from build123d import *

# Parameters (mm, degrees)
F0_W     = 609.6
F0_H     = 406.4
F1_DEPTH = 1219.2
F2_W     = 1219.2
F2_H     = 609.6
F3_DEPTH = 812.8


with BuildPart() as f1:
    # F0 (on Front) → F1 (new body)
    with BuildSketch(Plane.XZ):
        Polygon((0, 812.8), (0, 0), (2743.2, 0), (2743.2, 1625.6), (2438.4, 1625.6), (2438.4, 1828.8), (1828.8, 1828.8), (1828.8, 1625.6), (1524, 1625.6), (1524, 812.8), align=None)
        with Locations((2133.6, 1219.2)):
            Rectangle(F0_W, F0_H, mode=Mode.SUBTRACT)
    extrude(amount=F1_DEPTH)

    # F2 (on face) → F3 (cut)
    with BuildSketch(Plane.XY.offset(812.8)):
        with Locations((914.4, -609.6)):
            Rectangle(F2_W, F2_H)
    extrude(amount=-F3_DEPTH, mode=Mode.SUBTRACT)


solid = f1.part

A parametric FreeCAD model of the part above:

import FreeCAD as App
import Part
import Sketcher
from FreeCAD import Vector
Q = App.Units.Quantity

doc = App.newDocument("Part")
body = doc.addObject("PartDesign::Body", "Body")

sketch1 = body.newObject("Sketcher::SketchObject", "Sketch")
sketch1.AttachmentSupport = (doc.getObject("XZ_Plane"), [""])
sketch1.MapMode = "FlatFace"
sketch1.addGeometry([
    Part.LineSegment(Vector(0, 812.8, 0), Vector(0, 0, 0)),
    Part.LineSegment(Vector(0, 0, 0), Vector(2743.2, 0, 0)),
    Part.LineSegment(Vector(2743.2, 0, 0), Vector(2743.2, 1625.6, 0)),
    Part.LineSegment(Vector(2743.2, 1625.6, 0), Vector(2438.4, 1625.6, 0)),
    Part.LineSegment(Vector(2438.4, 1625.6, 0), Vector(2438.4, 1828.8, 0)),
    Part.LineSegment(Vector(2438.4, 1828.8, 0), Vector(1828.8, 1828.8, 0)),
    Part.LineSegment(Vector(1828.8, 1828.8, 0), Vector(1828.8, 1625.6, 0)),
    Part.LineSegment(Vector(1828.8, 1625.6, 0), Vector(1524, 1625.6, 0)),
    Part.LineSegment(Vector(1524, 1625.6, 0), Vector(1524, 812.8, 0)),
    Part.LineSegment(Vector(1524, 812.8, 0), Vector(0, 812.8, 0)),
    Part.LineSegment(Vector(2438.4, 1016, 0), Vector(1828.8, 1016, 0)),
    Part.LineSegment(Vector(1828.8, 1016, 0), Vector(1828.8, 1422.4, 0)),
    Part.LineSegment(Vector(1828.8, 1422.4, 0), Vector(2438.4, 1422.4, 0)),
    Part.LineSegment(Vector(2438.4, 1422.4, 0), Vector(2438.4, 1016, 0)),
], False)
sketch1.addConstraint([
    Sketcher.Constraint("Coincident", 0, 2, 1, 1),
    Sketcher.Constraint("Coincident", 1, 2, 2, 1),
    Sketcher.Constraint("Coincident", 2, 2, 3, 1),
    Sketcher.Constraint("Coincident", 3, 2, 4, 1),
    Sketcher.Constraint("Coincident", 4, 2, 5, 1),
    Sketcher.Constraint("Coincident", 5, 2, 6, 1),
    Sketcher.Constraint("Coincident", 6, 2, 7, 1),
    Sketcher.Constraint("Coincident", 7, 2, 8, 1),
    Sketcher.Constraint("Coincident", 8, 2, 9, 1),
    Sketcher.Constraint("Coincident", 9, 2, 0, 1),
    Sketcher.Constraint("Coincident", 10, 2, 11, 1),
    Sketcher.Constraint("Coincident", 11, 2, 12, 1),
    Sketcher.Constraint("Coincident", 12, 2, 13, 1),
    Sketcher.Constraint("Coincident", 13, 2, 10, 1),
    Sketcher.Constraint("Vertical", 0),
    Sketcher.Constraint("Horizontal", 1),
    Sketcher.Constraint("Vertical", 2),
    Sketcher.Constraint("Horizontal", 3),
    Sketcher.Constraint("Vertical", 4),
    Sketcher.Constraint("Horizontal", 5),
    Sketcher.Constraint("Vertical", 6),
    Sketcher.Constraint("Horizontal", 7),
    Sketcher.Constraint("Vertical", 8),
    Sketcher.Constraint("Horizontal", 9),
    Sketcher.Constraint("Horizontal", 10),
    Sketcher.Constraint("Vertical", 11),
    Sketcher.Constraint("Horizontal", 12),
    Sketcher.Constraint("Vertical", 13),
    Sketcher.Constraint("Coincident", 0, 2, -1, 1),
    Sketcher.Constraint("Horizontal", 3, 2, 6, 2),
    Sketcher.Constraint("Vertical", 6, 2, 10, 2),
    Sketcher.Constraint("Vertical", 4, 2, 12, 2),
    Sketcher.Constraint("Equal", 3, 7),
    Sketcher.Constraint("Equal", 0, 8),
    Sketcher.Constraint("DistanceX", 1, 1, 1, 2, Q("108 in")),
    Sketcher.Constraint("DistanceX", 3, 2, 3, 1, Q("12 in")),
    Sketcher.Constraint("DistanceX", 5, 2, 5, 1, Q("24 in")),
    Sketcher.Constraint("DistanceY", 0, 2, 0, 1, Q("32 in")),
    Sketcher.Constraint("DistanceY", 4, 1, 4, 2, Q("8 in")),
    Sketcher.Constraint("DistanceY", 11, 1, 11, 2, Q("16 in")),
    Sketcher.Constraint("DistanceY", -1, 1, 10, 2, Q("40 in")),
])
pad1 = body.newObject("PartDesign::Pad", "Pad")
pad1.Profile = sketch1
pad1.Length = Q("48 in")

sketch2 = body.newObject("Sketcher::SketchObject", "Sketch001")
sketch2.AttachmentSupport = (doc.getObject("XY_Plane"), [""])
sketch2.MapMode = "FlatFace"
sketch2.AttachmentOffset = App.Placement(Vector(0, 0, 32 * 25.4), App.Rotation())
sketch2.addGeometry([
    Part.LineSegment(Vector(304.8, -304.8, 0), Vector(304.8, -914.4, 0)),
    Part.LineSegment(Vector(304.8, -914.4, 0), Vector(1524, -914.4, 0)),
    Part.LineSegment(Vector(1524, -914.4, 0), Vector(1524, -304.8, 0)),
    Part.LineSegment(Vector(1524, -304.8, 0), Vector(304.8, -304.8, 0)),
], False)
sketch2.addConstraint([
    Sketcher.Constraint("Coincident", 0, 2, 1, 1),
    Sketcher.Constraint("Coincident", 1, 2, 2, 1),
    Sketcher.Constraint("Coincident", 2, 2, 3, 1),
    Sketcher.Constraint("Coincident", 3, 2, 0, 1),
    Sketcher.Constraint("Vertical", 0),
    Sketcher.Constraint("Horizontal", 1),
    Sketcher.Constraint("Vertical", 2),
    Sketcher.Constraint("Horizontal", 3),
    Sketcher.Constraint("DistanceX", 1, 1, 1, 2, Q("48 in")),
    Sketcher.Constraint("DistanceY", 0, 2, 0, 1, Q("24 in")),
    Sketcher.Constraint("DistanceX", -1, 1, 0, 2, Q("12 in")),
    Sketcher.Constraint("DistanceY", 0, 2, -1, 1, Q("36 in")),
])
pocket1 = body.newObject("PartDesign::Pocket", "Pocket")
pocket1.Profile = sketch2
pocket1.Length = Q("32 in")

doc.recompute()
